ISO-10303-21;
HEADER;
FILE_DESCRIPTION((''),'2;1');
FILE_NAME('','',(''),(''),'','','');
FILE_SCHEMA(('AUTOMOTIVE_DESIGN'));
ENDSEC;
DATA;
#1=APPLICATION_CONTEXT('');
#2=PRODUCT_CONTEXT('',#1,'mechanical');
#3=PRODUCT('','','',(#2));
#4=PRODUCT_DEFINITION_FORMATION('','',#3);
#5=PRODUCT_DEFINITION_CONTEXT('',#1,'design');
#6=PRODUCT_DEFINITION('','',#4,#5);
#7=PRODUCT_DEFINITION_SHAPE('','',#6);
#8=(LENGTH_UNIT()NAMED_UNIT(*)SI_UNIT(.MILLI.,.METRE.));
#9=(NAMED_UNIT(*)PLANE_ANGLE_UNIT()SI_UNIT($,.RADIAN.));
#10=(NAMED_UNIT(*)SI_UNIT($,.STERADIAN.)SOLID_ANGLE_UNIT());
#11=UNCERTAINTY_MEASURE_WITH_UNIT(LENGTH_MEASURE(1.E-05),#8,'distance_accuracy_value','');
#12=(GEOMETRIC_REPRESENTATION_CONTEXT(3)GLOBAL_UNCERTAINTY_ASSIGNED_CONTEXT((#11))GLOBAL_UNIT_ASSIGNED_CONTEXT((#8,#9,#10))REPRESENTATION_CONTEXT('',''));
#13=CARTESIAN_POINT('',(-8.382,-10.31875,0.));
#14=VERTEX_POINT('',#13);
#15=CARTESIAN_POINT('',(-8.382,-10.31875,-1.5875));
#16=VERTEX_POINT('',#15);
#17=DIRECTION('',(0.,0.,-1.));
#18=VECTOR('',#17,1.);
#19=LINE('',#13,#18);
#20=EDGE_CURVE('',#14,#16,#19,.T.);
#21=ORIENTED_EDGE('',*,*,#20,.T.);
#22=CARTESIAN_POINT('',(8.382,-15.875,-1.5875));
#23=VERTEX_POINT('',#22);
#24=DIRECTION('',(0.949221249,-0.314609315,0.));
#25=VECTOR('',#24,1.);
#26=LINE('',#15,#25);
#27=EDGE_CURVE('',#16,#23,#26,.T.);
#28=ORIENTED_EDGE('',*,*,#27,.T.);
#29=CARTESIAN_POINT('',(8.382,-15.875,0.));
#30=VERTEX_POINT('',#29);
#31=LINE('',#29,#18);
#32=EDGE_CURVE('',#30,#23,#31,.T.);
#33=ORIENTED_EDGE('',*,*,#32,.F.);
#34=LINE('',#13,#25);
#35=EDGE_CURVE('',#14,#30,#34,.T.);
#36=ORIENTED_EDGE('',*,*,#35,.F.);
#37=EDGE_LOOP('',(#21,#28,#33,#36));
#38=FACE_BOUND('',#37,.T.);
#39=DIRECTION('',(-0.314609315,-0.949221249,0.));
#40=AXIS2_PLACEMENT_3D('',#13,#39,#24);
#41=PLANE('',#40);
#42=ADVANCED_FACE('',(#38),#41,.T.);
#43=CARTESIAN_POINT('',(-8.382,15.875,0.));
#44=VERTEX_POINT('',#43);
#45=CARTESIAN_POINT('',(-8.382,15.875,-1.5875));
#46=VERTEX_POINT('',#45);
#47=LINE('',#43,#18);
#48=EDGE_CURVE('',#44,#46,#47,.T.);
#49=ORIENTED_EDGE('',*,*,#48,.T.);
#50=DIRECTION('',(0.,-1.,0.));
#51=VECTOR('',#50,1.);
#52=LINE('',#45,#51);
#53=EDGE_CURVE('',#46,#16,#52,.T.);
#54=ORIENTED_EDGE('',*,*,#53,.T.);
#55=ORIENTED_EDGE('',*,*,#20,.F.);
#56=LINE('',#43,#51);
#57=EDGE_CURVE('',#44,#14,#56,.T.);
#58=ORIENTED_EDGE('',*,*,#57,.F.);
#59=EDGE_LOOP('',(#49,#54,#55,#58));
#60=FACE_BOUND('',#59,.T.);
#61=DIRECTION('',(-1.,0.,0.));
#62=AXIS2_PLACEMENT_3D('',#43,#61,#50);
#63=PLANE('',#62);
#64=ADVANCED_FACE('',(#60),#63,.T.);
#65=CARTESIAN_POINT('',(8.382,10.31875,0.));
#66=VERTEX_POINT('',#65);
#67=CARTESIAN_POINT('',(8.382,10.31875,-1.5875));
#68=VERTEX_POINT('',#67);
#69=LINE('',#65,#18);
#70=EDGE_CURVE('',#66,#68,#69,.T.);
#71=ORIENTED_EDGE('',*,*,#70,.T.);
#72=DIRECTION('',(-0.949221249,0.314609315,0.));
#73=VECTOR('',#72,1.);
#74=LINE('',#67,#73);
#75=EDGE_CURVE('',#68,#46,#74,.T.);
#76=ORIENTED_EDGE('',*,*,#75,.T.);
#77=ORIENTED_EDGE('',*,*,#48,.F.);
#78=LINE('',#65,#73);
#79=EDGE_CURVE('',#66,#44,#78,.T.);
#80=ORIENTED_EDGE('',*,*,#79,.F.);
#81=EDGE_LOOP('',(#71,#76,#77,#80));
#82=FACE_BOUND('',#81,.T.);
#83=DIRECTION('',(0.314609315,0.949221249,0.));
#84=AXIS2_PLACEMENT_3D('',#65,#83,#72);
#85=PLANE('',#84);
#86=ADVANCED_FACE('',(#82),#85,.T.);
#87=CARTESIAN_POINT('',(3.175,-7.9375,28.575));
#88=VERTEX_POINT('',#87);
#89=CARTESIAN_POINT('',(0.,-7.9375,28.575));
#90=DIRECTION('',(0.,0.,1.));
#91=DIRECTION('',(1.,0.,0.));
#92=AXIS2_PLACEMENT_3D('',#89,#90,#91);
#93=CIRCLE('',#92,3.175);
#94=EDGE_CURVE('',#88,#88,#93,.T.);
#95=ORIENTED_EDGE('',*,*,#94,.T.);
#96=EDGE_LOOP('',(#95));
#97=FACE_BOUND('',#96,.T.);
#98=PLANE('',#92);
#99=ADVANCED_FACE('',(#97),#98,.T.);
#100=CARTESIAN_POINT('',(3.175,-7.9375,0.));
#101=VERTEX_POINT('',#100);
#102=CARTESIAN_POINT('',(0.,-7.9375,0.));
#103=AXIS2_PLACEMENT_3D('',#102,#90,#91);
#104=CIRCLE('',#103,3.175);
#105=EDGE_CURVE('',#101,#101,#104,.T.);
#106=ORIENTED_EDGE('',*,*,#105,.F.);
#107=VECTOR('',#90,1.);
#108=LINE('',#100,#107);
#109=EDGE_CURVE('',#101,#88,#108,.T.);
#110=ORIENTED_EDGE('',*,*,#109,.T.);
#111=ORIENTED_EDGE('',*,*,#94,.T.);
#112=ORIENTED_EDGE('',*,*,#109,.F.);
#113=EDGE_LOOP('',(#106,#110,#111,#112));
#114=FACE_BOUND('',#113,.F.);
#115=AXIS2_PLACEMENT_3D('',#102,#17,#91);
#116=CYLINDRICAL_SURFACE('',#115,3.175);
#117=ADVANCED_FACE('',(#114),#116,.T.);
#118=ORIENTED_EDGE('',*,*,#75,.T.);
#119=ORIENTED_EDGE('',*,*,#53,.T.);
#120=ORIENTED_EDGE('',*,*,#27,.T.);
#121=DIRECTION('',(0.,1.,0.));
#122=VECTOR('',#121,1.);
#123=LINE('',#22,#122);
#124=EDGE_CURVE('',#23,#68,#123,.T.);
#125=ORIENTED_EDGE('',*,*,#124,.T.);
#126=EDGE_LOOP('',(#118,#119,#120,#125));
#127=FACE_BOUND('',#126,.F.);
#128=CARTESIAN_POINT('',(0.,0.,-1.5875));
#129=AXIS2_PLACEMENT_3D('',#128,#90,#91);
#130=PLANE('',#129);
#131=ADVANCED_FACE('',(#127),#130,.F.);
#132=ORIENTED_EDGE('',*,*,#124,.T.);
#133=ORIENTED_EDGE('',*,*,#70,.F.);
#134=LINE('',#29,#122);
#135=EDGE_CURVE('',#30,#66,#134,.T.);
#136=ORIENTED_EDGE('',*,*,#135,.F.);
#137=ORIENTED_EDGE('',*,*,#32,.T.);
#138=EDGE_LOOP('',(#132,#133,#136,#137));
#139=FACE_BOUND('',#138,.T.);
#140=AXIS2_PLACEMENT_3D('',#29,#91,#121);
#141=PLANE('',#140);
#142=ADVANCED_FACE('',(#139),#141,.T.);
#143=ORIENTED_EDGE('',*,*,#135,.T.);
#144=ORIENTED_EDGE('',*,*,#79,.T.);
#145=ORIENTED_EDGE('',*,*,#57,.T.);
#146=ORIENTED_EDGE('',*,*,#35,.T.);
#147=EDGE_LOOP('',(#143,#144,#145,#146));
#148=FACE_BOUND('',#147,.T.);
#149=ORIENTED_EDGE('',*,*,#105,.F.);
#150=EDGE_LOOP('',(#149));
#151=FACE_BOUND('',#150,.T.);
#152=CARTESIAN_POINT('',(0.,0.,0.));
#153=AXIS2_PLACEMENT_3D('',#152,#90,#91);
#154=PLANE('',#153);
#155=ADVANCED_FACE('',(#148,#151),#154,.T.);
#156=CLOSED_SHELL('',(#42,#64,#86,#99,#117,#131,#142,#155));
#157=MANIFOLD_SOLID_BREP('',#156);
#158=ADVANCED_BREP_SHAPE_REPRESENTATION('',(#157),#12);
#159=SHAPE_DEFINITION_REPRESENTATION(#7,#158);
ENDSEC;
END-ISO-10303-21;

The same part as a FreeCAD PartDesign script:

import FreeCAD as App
import Part
import Sketcher

V = App.Vector
Q = App.Units.Quantity


def add_polygon(sketch, points):
    """Adds a closed chain of lines whose ends are joined by coincident constraints."""
    first, n = sketch.GeometryCount, len(points)
    for a, b in zip(points, points[1:] + points[:1]):
        sketch.addGeometry(Part.LineSegment(App.Vector(*a, 0), App.Vector(*b, 0)), False)
    for i in range(n):
        sketch.addConstraint(Sketcher.Constraint("Coincident", first + i, 2, first + (i + 1) % n, 1))

doc = App.newDocument("Part")
body = doc.addObject("PartDesign::Body", "Body")

sketch1 = doc.addObject("Sketcher::SketchObject", "Sketch")
body.addObject(sketch1)
sketch1.AttachmentSupport = (doc.XY_Plane, [""])
sketch1.MapMode = "FlatFace"
add_polygon(sketch1, [(-8, -10), (8, -16), (8, 10), (-8, 16)])
sketch1.addConstraint(Sketcher.Constraint("Vertical", 1))
sketch1.addConstraint(Sketcher.Constraint("Vertical", 3))
sketch1.addConstraint(Sketcher.Constraint("Symmetric", 0, 2, 2, 2, -1, 1))
sketch1.addConstraint(Sketcher.Constraint("Parallel", 0, 2))
sketch1.addConstraint(Sketcher.Constraint("DistanceY", 1, 1, 1, 2, Q("1.03125 in")))
sketch1.addConstraint(Sketcher.Constraint("DistanceX", -1, 1, 0, 2, Q("0.33 in")))
sketch1.addConstraint(Sketcher.Constraint("DistanceY", 0, 2, 2, 2, Q("1.25 in")))
pad1 = doc.addObject("PartDesign::Pad", "Pad")
body.addObject(pad1)
pad1.Profile = sketch1
pad1.Length = Q("0.0625 in")
pad1.Reversed = True

sketch2 = doc.addObject("Sketcher::SketchObject", "Sketch001")
body.addObject(sketch2)
sketch2.AttachmentSupport = (doc.XY_Plane, [""])
sketch2.MapMode = "FlatFace"
sketch2.addGeometry(Part.Circle(V(0, -7.9, 0), V(0, 0, 1), 3.2), False)
sketch2.addConstraint(Sketcher.Constraint("PointOnObject", 0, 3, -2))
sketch2.addConstraint(Sketcher.Constraint("Diameter", 0, Q("0.25 in")))
sketch2.addConstraint(Sketcher.Constraint("DistanceY", 0, 3, -1, 1, Q("0.3125 in")))
pad2 = doc.addObject("PartDesign::Pad", "Pad001")
body.addObject(pad2)
pad2.Profile = sketch2
pad2.Length = Q("1.125 in")

doc.recompute()
